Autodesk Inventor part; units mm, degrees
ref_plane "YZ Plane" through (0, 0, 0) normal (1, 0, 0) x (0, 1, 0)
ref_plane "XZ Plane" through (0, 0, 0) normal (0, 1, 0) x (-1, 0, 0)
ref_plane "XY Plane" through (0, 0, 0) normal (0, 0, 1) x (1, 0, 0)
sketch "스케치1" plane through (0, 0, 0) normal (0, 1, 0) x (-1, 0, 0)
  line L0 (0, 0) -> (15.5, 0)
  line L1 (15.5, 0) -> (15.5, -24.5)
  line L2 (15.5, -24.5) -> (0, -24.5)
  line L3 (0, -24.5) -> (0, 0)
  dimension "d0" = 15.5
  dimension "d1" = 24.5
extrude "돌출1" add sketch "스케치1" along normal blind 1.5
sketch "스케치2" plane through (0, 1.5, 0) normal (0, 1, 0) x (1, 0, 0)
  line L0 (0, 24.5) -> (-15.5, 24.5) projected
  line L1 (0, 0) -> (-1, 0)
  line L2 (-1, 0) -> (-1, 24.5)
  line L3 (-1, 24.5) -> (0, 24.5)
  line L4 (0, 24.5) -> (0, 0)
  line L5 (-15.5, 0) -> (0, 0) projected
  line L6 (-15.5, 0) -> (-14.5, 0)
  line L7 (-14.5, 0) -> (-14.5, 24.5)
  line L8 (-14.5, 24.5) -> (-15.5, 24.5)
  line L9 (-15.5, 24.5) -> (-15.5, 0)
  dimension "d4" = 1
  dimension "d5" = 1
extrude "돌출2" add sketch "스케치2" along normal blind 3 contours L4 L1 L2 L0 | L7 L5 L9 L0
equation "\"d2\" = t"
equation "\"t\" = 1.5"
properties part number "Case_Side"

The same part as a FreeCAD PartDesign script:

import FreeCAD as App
import Part
import Sketcher
from FreeCAD import Vector
Q = App.Units.Quantity


def add_polygon(sketch, points):
    """Adds a closed chain of lines whose ends are joined by coincident constraints."""
    first, n = sketch.GeometryCount, len(points)
    for a, b in zip(points, points[1:] + points[:1]):
        sketch.addGeometry(Part.LineSegment(App.Vector(*a, 0), App.Vector(*b, 0)), False)
    for i in range(n):
        sketch.addConstraint(Sketcher.Constraint("Coincident", first + i, 2, first + (i + 1) % n, 1))

doc = App.newDocument("Part")
params = doc.addObject("Spreadsheet::Sheet", "Params")
for row, (alias, value) in enumerate([
    ("sketch1_width", "15.5 mm"),
    ("sketch1_height", "24.5 mm"),
    ("pad1_length", "1.5 mm"),
    ("sketch2_width", "1 mm"),
    ("sketch2_height", "24.5 mm"),
    ("pad2_length", "3 mm"),
], start=1):
    params.set(f"A{row}", alias)
    params.set(f"B{row}", "=" + value)
    params.setAlias(f"B{row}", alias)

body = doc.addObject("PartDesign::Body", "Body")

# Sketch on XZ plane
sketch1 = doc.addObject("Sketcher::SketchObject", "Sketch")
body.addObject(sketch1)
sketch1.AttachmentSupport = (doc.XZ_Plane, [""])
sketch1.MapMode = "FlatFace"
add_polygon(sketch1, [(-16, 0), (0, 0), (0, -24), (-16, -24)])  # lines 0-3
sketch1.addConstraint(Sketcher.Constraint("Horizontal", 0))
sketch1.addConstraint(Sketcher.Constraint("Vertical", 1))
sketch1.addConstraint(Sketcher.Constraint("Horizontal", 2))
sketch1.addConstraint(Sketcher.Constraint("Vertical", 3))
sketch1.addConstraint(Sketcher.Constraint("Coincident", 0, 2, -1, 1))
sketch1.addConstraint(Sketcher.Constraint("DistanceX", 0, 1, 0, 2, Q("15.5 mm")))
sketch1.addConstraint(Sketcher.Constraint("DistanceY", 1, 2, 1, 1, Q("24.5 mm")))
sketch1.setExpression("Constraints[9]", "Params.sketch1_width")
sketch1.setExpression("Constraints[10]", "Params.sketch1_height")
pad1 = doc.addObject("PartDesign::Pad", "Pad")
body.addObject(pad1)
pad1.Profile = sketch1
pad1.setExpression("Length", "Params.pad1_length")
pad1.Reversed = True

# Sketch on XZ plane
sketch2 = doc.addObject("Sketcher::SketchObject", "Sketch001")
body.addObject(sketch2)
sketch2.AttachmentSupport = (doc.XZ_Plane, [""])
sketch2.MapMode = "FlatFace"
sketch2.AttachmentOffset = App.Placement(Vector(0, 0, -1.5), App.Rotation())
add_polygon(sketch2, [(0, 0), (0, -24.5), (-1, -24.5), (-1, 0)])  # lines 0-3
add_polygon(sketch2, [(-14.5, 0), (-14.5, -24.5), (-15.5, -24.5), (-15.5, 0)])  # lines 4-7
sketch2.addConstraint(Sketcher.Constraint("Vertical", 0))
sketch2.addConstraint(Sketcher.Constraint("Horizontal", 1))
sketch2.addConstraint(Sketcher.Constraint("Vertical", 2))
sketch2.addConstraint(Sketcher.Constraint("Horizontal", 3))
sketch2.addConstraint(Sketcher.Constraint("Vertical", 4))
sketch2.addConstraint(Sketcher.Constraint("Horizontal", 5))
sketch2.addConstraint(Sketcher.Constraint("Vertical", 6))
sketch2.addConstraint(Sketcher.Constraint("Horizontal", 7))
sketch2.addConstraint(Sketcher.Constraint("Coincident", 3, 2, -1, 1))
sketch2.addConstraint(Sketcher.Constraint("PointOnObject", 6, 2, -1))
sketch2.addConstraint(Sketcher.Constraint("Horizontal", 1, 2, 4, 2))
sketch2.addConstraint(Sketcher.Constraint("Equal", 3, 5))
sketch2.addConstraint(Sketcher.Constraint("DistanceX", 1, 2, 1, 1, Q("1 mm")))
sketch2.addConstraint(Sketcher.Constraint("DistanceY", 0, 2, 0, 1, Q("24.5 mm")))
sketch2.addConstraint(Sketcher.Constraint("DistanceX", 4, 2, -1, 1, Q("14.5 mm")))
sketch2.setExpression("Constraints[20]", "Params.sketch2_width")
sketch2.setExpression("Constraints[21]", "Params.sketch2_height")
pad2 = doc.addObject("PartDesign::Pad", "Pad001")
body.addObject(pad2)
pad2.Profile = sketch2
pad2.setExpression("Length", "Params.pad2_length")
pad2.Reversed = True

doc.recompute()
